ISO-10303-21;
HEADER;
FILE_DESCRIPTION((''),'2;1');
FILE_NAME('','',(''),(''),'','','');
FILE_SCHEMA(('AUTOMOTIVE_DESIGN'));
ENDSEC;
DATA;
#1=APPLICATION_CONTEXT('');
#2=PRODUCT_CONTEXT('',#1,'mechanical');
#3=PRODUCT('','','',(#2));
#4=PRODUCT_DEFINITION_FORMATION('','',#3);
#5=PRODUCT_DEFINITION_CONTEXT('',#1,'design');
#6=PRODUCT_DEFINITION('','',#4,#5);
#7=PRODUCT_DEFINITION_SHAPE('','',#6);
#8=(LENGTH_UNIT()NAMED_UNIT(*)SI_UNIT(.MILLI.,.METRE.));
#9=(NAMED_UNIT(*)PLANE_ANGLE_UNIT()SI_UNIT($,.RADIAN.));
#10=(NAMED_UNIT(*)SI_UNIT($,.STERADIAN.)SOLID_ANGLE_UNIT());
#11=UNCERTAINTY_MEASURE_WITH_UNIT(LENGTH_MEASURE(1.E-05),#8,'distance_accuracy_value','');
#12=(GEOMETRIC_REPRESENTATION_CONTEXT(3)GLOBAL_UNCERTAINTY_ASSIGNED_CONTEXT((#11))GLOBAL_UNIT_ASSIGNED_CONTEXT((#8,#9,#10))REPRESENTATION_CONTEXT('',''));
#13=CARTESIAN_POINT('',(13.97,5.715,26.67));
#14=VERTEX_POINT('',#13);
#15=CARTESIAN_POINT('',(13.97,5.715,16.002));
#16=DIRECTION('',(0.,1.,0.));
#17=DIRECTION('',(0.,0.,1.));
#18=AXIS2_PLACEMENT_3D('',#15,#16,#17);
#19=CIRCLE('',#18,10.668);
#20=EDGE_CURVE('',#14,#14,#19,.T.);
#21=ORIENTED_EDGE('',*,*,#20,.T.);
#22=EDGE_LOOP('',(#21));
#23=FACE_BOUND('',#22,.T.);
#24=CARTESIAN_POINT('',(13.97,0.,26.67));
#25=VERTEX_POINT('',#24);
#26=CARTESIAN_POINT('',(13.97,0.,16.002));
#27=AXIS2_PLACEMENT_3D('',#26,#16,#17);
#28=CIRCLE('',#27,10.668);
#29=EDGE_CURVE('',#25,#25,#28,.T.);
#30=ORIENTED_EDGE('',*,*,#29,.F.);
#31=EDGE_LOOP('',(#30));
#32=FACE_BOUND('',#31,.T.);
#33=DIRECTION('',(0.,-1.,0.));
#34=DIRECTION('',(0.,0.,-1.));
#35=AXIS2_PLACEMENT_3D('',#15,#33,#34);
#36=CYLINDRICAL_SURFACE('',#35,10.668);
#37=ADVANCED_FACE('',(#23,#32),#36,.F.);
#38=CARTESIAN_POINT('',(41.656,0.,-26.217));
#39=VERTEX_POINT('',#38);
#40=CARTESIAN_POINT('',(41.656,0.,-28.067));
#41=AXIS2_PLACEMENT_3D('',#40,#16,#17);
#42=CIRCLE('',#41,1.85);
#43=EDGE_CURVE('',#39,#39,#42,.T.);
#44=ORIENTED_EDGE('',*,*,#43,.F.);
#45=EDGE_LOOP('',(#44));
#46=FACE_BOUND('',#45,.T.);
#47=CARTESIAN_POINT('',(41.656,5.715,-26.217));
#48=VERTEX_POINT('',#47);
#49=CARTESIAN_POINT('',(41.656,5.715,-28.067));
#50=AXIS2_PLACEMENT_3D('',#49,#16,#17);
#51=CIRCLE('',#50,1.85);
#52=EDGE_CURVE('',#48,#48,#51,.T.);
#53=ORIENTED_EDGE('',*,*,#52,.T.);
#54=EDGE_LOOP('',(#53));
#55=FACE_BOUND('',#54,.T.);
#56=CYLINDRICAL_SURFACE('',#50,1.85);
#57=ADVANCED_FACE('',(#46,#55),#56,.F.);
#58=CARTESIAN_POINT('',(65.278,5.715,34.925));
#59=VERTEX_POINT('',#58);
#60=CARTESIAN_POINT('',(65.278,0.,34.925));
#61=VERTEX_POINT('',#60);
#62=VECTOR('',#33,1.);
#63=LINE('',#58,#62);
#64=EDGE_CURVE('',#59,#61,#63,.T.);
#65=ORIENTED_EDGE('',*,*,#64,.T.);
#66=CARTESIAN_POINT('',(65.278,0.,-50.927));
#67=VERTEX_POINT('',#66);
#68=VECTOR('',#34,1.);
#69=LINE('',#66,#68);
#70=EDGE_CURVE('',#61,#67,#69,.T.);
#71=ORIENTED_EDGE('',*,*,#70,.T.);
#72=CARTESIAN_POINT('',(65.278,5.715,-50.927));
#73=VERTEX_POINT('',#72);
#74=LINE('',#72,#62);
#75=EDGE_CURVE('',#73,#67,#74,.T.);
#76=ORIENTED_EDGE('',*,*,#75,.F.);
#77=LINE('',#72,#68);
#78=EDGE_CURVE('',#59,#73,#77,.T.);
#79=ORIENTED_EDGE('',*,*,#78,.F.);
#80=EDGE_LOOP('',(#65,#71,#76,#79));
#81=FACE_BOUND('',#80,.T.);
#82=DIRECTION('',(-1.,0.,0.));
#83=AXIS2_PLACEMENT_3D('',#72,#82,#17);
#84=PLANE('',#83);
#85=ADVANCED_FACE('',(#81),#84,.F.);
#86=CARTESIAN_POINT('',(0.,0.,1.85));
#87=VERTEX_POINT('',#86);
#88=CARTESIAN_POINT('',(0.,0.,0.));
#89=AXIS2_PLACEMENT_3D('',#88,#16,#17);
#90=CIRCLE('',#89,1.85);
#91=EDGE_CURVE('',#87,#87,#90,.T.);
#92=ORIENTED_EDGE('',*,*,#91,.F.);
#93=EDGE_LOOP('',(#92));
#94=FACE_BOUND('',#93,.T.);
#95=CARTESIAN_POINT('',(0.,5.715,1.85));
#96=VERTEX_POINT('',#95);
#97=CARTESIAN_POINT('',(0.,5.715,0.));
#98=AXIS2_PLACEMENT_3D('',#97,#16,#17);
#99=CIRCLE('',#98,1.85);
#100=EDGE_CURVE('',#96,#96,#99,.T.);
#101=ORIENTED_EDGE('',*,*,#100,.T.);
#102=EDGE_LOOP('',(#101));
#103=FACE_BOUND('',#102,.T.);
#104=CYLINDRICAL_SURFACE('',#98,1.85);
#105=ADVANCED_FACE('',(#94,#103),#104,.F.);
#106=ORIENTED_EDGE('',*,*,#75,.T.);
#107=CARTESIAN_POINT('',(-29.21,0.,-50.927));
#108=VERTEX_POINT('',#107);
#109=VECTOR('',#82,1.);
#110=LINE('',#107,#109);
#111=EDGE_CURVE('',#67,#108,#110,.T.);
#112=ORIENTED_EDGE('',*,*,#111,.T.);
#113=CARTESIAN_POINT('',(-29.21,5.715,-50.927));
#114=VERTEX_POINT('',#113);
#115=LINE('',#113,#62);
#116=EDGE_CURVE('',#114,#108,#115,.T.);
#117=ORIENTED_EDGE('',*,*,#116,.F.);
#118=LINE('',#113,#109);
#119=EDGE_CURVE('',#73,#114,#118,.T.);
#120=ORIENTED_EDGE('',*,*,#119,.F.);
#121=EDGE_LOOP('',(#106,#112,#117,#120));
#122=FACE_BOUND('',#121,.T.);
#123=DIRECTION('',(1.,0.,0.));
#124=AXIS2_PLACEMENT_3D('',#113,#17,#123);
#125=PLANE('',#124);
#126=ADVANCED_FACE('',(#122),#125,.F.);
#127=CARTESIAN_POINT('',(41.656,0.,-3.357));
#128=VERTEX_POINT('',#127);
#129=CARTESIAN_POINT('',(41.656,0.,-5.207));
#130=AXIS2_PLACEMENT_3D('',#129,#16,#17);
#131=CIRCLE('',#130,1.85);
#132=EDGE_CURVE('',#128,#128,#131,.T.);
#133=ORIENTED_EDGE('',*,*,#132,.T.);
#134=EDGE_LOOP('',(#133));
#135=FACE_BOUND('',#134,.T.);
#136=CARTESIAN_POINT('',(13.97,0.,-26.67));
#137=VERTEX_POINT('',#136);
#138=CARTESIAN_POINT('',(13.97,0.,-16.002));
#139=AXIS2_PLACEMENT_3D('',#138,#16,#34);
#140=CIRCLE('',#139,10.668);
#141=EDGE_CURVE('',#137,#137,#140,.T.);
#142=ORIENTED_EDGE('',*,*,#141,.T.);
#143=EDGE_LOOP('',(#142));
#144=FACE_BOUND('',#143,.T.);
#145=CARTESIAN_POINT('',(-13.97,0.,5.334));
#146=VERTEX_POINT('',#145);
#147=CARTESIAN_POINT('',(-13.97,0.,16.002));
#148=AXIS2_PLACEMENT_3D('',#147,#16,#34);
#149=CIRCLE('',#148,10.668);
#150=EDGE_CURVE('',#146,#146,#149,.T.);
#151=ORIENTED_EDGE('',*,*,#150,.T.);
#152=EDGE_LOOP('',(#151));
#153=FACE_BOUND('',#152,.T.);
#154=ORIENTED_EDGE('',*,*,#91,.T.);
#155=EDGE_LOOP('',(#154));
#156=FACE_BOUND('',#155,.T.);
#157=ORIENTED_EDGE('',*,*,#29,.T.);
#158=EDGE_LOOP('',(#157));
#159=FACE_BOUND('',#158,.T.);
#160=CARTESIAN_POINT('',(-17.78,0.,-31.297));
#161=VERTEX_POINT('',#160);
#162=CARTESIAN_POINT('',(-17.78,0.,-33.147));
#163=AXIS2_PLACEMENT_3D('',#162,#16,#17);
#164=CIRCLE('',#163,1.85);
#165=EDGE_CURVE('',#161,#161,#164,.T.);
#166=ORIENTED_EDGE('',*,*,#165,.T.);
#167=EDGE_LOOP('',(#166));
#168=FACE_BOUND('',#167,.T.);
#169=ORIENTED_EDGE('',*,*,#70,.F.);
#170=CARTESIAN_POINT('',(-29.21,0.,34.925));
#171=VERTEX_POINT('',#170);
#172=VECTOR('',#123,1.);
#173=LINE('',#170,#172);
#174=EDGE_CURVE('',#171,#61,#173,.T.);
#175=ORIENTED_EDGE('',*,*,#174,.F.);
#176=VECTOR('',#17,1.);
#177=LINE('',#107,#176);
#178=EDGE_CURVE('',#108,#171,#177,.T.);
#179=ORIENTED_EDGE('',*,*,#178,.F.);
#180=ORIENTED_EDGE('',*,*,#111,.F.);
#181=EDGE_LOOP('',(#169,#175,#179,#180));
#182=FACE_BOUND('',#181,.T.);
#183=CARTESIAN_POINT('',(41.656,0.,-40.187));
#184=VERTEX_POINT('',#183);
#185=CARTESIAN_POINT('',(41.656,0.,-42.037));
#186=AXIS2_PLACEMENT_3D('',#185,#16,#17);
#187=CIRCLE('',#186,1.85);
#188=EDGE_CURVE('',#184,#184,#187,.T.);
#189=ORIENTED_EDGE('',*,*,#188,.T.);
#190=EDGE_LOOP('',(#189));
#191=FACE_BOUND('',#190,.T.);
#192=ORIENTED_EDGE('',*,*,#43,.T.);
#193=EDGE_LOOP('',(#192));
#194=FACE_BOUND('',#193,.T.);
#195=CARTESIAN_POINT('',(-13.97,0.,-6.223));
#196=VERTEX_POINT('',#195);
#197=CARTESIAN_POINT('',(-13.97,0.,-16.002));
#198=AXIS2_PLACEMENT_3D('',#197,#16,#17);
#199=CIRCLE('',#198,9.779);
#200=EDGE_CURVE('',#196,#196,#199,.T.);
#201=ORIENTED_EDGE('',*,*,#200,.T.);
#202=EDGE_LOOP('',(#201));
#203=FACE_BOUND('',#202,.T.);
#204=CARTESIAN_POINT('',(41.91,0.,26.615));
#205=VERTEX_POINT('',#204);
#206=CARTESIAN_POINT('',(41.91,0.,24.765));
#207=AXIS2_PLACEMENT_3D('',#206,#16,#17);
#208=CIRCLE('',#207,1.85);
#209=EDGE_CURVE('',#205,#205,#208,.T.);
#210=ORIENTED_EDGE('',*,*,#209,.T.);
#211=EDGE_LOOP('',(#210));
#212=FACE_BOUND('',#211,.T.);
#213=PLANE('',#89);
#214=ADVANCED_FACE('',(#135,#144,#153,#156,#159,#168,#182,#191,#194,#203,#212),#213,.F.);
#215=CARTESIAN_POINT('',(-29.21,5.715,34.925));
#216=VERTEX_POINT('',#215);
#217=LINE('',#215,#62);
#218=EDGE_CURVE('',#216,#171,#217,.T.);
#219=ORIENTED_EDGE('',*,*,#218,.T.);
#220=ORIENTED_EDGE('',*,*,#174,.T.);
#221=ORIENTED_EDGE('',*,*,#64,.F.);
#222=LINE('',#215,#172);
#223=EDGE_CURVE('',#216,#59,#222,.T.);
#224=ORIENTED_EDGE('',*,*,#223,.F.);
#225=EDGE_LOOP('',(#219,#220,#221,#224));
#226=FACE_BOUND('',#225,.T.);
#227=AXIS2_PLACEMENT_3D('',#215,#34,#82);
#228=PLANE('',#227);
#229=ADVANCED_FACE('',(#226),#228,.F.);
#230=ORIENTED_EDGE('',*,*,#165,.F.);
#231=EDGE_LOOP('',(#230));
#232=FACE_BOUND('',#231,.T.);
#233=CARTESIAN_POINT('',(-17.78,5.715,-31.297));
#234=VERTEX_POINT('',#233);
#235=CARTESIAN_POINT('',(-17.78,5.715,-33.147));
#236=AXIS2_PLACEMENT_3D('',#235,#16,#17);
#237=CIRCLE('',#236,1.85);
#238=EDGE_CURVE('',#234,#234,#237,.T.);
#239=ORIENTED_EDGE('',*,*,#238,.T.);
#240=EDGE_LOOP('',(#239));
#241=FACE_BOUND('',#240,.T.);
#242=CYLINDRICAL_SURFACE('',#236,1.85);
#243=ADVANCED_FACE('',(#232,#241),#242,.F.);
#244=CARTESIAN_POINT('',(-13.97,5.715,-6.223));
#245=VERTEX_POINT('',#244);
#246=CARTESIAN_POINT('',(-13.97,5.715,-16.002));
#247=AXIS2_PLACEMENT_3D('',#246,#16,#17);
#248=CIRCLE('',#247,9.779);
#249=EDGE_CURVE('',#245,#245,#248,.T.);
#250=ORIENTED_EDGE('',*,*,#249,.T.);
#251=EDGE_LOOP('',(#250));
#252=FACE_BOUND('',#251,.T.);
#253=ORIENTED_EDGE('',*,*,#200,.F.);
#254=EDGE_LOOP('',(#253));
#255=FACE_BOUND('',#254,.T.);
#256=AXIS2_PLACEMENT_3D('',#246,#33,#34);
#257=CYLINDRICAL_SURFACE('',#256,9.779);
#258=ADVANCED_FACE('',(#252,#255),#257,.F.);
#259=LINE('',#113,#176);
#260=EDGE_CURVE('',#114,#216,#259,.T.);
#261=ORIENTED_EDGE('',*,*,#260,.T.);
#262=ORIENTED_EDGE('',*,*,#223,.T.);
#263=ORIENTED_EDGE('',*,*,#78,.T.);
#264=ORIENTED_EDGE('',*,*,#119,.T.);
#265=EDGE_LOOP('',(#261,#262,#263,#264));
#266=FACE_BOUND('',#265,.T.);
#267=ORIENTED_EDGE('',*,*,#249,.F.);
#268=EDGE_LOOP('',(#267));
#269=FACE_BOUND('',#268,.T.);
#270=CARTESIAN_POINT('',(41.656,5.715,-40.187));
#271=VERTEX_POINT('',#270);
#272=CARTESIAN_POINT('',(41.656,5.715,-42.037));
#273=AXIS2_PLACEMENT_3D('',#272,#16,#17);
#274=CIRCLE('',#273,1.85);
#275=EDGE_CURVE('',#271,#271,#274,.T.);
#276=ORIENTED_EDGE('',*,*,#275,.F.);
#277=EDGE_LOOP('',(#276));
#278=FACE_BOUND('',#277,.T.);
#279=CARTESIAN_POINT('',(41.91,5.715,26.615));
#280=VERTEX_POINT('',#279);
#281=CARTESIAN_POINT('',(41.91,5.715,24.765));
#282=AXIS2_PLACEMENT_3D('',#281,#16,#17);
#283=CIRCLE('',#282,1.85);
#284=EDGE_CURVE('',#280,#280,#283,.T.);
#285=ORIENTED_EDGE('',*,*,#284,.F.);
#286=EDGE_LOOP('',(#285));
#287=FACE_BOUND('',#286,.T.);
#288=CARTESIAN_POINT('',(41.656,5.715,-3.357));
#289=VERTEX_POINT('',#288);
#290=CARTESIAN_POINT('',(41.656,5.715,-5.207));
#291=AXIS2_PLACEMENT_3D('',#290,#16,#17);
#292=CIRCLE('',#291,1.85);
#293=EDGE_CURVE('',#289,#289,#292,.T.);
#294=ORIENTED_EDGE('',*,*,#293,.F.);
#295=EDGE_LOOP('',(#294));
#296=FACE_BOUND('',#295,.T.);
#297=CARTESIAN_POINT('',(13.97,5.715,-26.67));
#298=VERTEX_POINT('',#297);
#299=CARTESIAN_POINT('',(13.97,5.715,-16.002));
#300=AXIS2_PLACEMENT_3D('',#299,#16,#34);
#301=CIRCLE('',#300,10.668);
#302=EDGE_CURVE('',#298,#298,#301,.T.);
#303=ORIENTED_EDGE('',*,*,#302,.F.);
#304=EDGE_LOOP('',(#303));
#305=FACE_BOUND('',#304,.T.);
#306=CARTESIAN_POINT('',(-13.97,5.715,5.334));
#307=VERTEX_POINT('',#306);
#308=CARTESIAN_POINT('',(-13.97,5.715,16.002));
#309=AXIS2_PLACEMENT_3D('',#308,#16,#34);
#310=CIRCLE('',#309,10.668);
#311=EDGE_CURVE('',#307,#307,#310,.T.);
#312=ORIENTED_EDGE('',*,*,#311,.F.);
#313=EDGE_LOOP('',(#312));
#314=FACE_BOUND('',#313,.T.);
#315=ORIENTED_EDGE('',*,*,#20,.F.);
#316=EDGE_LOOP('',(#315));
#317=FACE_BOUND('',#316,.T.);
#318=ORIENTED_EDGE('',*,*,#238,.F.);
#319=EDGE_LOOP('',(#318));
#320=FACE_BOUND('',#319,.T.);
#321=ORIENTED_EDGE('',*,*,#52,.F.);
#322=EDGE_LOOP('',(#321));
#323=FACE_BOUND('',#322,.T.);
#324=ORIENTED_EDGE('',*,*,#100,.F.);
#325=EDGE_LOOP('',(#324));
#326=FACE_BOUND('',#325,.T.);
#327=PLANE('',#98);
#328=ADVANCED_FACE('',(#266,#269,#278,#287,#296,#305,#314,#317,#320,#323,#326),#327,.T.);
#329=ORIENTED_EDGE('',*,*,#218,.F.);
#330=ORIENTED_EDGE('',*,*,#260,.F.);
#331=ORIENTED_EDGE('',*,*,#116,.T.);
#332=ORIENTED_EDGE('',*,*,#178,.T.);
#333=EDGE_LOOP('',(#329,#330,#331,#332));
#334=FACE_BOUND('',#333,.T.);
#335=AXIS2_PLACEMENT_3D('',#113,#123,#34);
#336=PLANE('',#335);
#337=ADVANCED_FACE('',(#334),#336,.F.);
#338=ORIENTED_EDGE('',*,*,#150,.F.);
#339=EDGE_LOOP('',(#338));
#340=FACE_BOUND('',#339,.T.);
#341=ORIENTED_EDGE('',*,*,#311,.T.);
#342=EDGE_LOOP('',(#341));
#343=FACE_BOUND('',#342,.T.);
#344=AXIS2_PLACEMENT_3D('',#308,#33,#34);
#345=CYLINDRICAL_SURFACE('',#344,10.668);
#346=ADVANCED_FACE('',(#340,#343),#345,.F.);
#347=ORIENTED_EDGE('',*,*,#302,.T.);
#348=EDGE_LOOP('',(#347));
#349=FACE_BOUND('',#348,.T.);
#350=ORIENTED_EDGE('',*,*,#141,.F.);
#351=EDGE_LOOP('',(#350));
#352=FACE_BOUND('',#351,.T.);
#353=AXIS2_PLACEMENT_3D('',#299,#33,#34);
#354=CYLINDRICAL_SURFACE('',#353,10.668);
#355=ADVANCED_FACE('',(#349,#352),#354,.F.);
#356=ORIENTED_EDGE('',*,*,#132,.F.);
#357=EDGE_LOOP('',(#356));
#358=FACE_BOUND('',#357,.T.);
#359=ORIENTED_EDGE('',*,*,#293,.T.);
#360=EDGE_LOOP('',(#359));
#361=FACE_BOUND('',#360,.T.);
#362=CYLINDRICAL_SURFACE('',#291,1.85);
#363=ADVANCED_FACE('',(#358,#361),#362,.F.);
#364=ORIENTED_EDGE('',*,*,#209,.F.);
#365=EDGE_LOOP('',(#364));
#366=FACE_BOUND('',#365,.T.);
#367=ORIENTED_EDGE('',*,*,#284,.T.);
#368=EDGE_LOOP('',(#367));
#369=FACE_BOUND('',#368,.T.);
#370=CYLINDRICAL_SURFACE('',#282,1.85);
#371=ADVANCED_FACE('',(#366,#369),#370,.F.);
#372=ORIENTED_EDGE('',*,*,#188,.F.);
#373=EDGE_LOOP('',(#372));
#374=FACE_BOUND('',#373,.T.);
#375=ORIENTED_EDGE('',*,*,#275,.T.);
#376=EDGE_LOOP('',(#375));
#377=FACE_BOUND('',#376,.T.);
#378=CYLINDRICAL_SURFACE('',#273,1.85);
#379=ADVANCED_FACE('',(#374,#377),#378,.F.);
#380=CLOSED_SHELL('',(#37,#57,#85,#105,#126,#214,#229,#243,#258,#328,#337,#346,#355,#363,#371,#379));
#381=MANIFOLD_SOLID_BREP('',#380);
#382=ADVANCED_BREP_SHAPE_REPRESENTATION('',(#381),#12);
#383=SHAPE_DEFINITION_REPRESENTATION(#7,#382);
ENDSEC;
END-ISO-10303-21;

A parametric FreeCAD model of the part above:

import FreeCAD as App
import Part
import Sketcher

V = App.Vector
Q = App.Units.Quantity

doc = App.newDocument("Part")
params = doc.addObject("Spreadsheet::Sheet", "Params")
for row, (alias, value) in enumerate([
    ("sketch1_diameter", "0.84 in"),
    ("sketch1_diameter2", "0.77 in"),
    ("sketch1_width", "3.72 in"),
    ("sketch1_height", "3.38 in"),
    ("pad1_length", "0.225 in"),
    ("hole_diameter", "3.7 mm"),
    ("hole_depth", "1 in"),
], start=1):
    params.set(f"A{row}", alias)
    params.set(f"B{row}", "=" + value)
    params.setAlias(f"B{row}", alias)

body = doc.addObject("PartDesign::Body", "Body")

sketch1 = body.newObject("Sketcher::SketchObject", "Sketch")
sketch1.AttachmentSupport = (doc.getObject("XZ_Plane"), [""])
sketch1.MapMode = "FlatFace"
sketch1.addGeometry([
    Part.LineSegment(V(-29, -51, 0), V(-29, 35, 0)),
    Part.LineSegment(V(-29, 35, 0), V(65, 35, 0)),
    Part.LineSegment(V(65, 35, 0), V(65, -51, 0)),
    Part.LineSegment(V(65, -51, 0), V(-29, -51, 0)),
    Part.Circle(V(-14, 16, 0), V(0, 0, 1), 11),
    Part.Circle(V(14, 16, 0), V(0, 0, 1), 11),
    Part.Circle(V(-14, -16, 0), V(0, 0, 1), 10),
    Part.Circle(V(14, -16, 0), V(0, 0, 1), 11),
], False)
sketch1.addConstraint([
    Sketcher.Constraint("Coincident", 0, 2, 1, 1),
    Sketcher.Constraint("Coincident", 1, 2, 2, 1),
    Sketcher.Constraint("Coincident", 2, 2, 3, 1),
    Sketcher.Constraint("Coincident", 3, 2, 0, 1),
    Sketcher.Constraint("Vertical", 0),
    Sketcher.Constraint("Horizontal", 1),
    Sketcher.Constraint("Vertical", 2),
    Sketcher.Constraint("Horizontal", 3),
    Sketcher.Constraint("Equal", 4, 5),
    Sketcher.Constraint("Equal", 5, 7),
    Sketcher.Constraint("Symmetric", 5, 3, 6, 3, -1, 1),
    Sketcher.Constraint("Symmetric", 4, 3, 7, 3, -1, 1),
    Sketcher.Constraint("Symmetric", 4, 3, 5, 3, -2),
    Sketcher.Constraint("Diameter", 4, Q("0.84 in")),
    Sketcher.Constraint("Diameter", 6, Q("0.77 in")),
    Sketcher.Constraint("DistanceX", 1, 1, 1, 2, Q("3.72 in")),
    Sketcher.Constraint("DistanceY", 0, 1, 0, 2, Q("3.38 in")),
    Sketcher.Constraint("DistanceX", 4, 3, 5, 3, Q("1.1 in")),
    Sketcher.Constraint("DistanceX", 0, 2, 4, 3, Q("0.6 in")),
    Sketcher.Constraint("DistanceY", -1, 1, 4, 3, Q("0.63 in")),
    Sketcher.Constraint("DistanceY", -1, 1, 0, 2, Q("1.375 in")),
])
sketch1.setExpression("Constraints[13]", "Params.sketch1_diameter")
sketch1.setExpression("Constraints[14]", "Params.sketch1_diameter2")
sketch1.setExpression("Constraints[15]", "Params.sketch1_width")
sketch1.setExpression("Constraints[16]", "Params.sketch1_height")
pad1 = body.newObject("PartDesign::Pad", "Pad")
pad1.Profile = sketch1
pad1.setExpression("Length", "Params.pad1_length")
pad1.Reversed = True

sketch2 = body.newObject("Sketcher::SketchObject", "Sketch001")
sketch2.AttachmentSupport = (doc.getObject("XZ_Plane"), [""])
sketch2.MapMode = "FlatFace"
sketch2.AttachmentOffset = App.Placement(V(0, 0, -0.225 * 25.4), App.Rotation())
sketch2.addGeometry([
    Part.Circle(V(41.7, -42, 0), V(0, 0, 1), 1.9),
    Part.Circle(V(41.9, 24.8, 0), V(0, 0, 1), 1.9),
    Part.Circle(V(-17.8, -33.1, 0), V(0, 0, 1), 1.9),
    Part.Circle(V(41.7, -5.2, 0), V(0, 0, 1), 1.9),
    Part.Circle(V(41.7, -28.1, 0), V(0, 0, 1), 1.9),
    Part.Circle(V(0, 0, 0), V(0, 0, 1), 1.9),
], False)
sketch2.addConstraint([
    Sketcher.Constraint("Coincident", 5, 3, -1, 1),
    Sketcher.Constraint("Equal", 0, 1),
    Sketcher.Constraint("Equal", 1, 2),
    Sketcher.Constraint("Equal", 2, 3),
    Sketcher.Constraint("Equal", 3, 4),
    Sketcher.Constraint("Equal", 4, 5),
    Sketcher.Constraint("Vertical", 0, 3, 3, 3),
    Sketcher.Constraint("Vertical", 3, 3, 4, 3),
    Sketcher.Constraint("DistanceX", 2, 3, -1, 1, Q("0.7 in")),
    Sketcher.Constraint("DistanceY", 2, 3, 3, 3, Q("1.1 in")),
    Sketcher.Constraint("DistanceY", 4, 3, 3, 3, Q("0.9 in")),
    Sketcher.Constraint("Diameter", 0, 3.7),
    Sketcher.Constraint("DistanceX", -1, 1, 0, 3, Q("1.64 in")),
    Sketcher.Constraint("DistanceX", -1, 1, 1, 3, Q("1.65 in")),
    Sketcher.Constraint("DistanceY", 0, 3, 1, 3, Q("2.63 in")),
    Sketcher.Constraint("DistanceY", 0, 3, 2, 3, Q("0.35 in")),
    Sketcher.Constraint("DistanceY", 0, 3, -1, 1, Q("1.655 in")),
])
doc.recompute()
hole = body.newObject("PartDesign::Hole", "Hole")
hole.Profile = sketch2
hole.ThreadType = "None"
hole.setExpression("Diameter", "Params.hole_diameter")
hole.DepthType = "Dimension"
hole.setExpression("Depth", "Params.hole_depth")
hole.DrillPoint = "Angled"
hole.DrillPointAngle = 118
hole.Reversed = True

doc.recompute()
